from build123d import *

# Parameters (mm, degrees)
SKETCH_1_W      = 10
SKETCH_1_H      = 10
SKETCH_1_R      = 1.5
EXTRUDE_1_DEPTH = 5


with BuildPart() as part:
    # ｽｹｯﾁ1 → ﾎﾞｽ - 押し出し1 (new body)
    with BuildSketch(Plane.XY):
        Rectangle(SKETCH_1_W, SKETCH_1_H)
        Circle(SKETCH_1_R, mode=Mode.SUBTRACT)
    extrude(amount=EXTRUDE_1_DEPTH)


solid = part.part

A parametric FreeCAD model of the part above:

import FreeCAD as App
import Part
import Sketcher

V = App.Vector
Q = App.Units.Quantity

doc = App.newDocument("Part")
params = doc.addObject("Spreadsheet::Sheet", "Params")
for row, (alias, value) in enumerate([
    ("sketch1_diameter", "3 mm"),
    ("sketch1_width", "10 mm"),
    ("pad1_length", "5 mm"),
], start=1):
    params.set(f"A{row}", alias)
    params.set(f"B{row}", "=" + value)
    params.setAlias(f"B{row}", alias)

body = doc.addObject("PartDesign::Body", "Body")

# Sketch on XY plane
sketch1 = body.newObject("Sketcher::SketchObject", "Sketch")
sketch1.AttachmentSupport = (doc.getObject("XY_Plane"), [""])
sketch1.MapMode = "FlatFace"
sketch1.addGeometry(Part.LineSegment(V(-5, 5, 0), V(-5, -5, 0)), False)
sketch1.addGeometry(Part.LineSegment(V(-5, -5, 0), V(5, -5, 0)), False)
sketch1.addGeometry(Part.LineSegment(V(5, -5, 0), V(5, 5, 0)), False)
sketch1.addGeometry(Part.LineSegment(V(5, 5, 0), V(-5, 5, 0)), False)
sketch1.addGeometry(Part.Circle(V(0, 0, 0), V(0, 0, 1), 1.5), False)
sketch1.addConstraint(Sketcher.Constraint("Coincident", 0, 2, 1, 1))
sketch1.addConstraint(Sketcher.Constraint("Coincident", 1, 2, 2, 1))
sketch1.addConstraint(Sketcher.Constraint("Coincident", 2, 2, 3, 1))
sketch1.addConstraint(Sketcher.Constraint("Coincident", 3, 2, 0, 1))
sketch1.addConstraint(Sketcher.Constraint("Vertical", 0))
sketch1.addConstraint(Sketcher.Constraint("Horizontal", 1))
sketch1.addConstraint(Sketcher.Constraint("Vertical", 2))
sketch1.addConstraint(Sketcher.Constraint("Horizontal", 3))
sketch1.addConstraint(Sketcher.Constraint("Coincident", 4, 3, -1, 1))
sketch1.addConstraint(Sketcher.Constraint("Symmetric", 0, 2, 2, 2, -1, 1))
sketch1.addConstraint(Sketcher.Constraint("Equal", 3, 0))
sketch1.addConstraint(Sketcher.Constraint("Diameter", 4, Q("3 mm")))
sketch1.addConstraint(Sketcher.Constraint("DistanceX", 1, 1, 1, 2, Q("10 mm")))
sketch1.setExpression("Constraints[11]", "Params.sketch1_diameter")
sketch1.setExpression("Constraints[12]", "Params.sketch1_width")
pad1 = body.newObject("PartDesign::Pad", "Pad")
pad1.Profile = sketch1
pad1.setExpression("Length", "Params.pad1_length")

doc.recompute()
